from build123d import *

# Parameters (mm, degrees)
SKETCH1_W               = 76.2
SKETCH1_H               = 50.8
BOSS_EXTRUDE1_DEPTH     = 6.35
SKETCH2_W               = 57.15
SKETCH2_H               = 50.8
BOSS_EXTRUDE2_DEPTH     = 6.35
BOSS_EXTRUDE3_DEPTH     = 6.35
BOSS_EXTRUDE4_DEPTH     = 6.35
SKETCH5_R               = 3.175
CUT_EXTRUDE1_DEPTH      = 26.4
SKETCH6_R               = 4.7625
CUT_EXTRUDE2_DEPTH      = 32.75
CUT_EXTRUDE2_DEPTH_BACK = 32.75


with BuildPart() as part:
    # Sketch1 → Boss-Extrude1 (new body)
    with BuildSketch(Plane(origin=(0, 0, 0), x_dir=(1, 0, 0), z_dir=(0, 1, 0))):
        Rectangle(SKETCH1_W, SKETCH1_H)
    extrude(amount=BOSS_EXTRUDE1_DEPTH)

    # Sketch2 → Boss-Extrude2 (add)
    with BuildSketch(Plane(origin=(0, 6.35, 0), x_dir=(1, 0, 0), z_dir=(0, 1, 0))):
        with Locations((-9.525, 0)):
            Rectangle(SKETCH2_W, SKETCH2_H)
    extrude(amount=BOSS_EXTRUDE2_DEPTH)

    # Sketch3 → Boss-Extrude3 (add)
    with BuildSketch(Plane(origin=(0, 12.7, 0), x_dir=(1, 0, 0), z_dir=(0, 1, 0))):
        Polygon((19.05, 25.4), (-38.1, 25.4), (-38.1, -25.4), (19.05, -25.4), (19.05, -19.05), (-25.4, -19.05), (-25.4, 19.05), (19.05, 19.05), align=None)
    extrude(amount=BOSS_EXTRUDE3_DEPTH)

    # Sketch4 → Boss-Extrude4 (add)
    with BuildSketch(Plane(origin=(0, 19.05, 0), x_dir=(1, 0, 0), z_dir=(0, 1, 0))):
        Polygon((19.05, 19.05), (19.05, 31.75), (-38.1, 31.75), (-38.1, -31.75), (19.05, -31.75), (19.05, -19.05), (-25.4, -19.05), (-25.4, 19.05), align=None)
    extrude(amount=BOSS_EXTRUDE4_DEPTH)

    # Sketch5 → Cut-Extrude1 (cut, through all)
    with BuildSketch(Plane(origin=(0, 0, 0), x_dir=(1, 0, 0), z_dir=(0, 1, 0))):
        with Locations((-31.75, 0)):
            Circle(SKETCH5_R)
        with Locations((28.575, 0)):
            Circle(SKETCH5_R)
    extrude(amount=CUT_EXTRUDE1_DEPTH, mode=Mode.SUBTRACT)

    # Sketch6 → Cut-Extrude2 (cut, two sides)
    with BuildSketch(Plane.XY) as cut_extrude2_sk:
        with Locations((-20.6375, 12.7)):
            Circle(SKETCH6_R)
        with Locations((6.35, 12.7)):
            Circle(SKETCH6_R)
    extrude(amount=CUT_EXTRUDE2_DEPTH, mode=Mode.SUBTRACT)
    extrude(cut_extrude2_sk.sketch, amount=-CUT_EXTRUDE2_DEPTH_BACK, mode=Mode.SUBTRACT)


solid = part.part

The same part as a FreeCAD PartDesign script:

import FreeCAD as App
import Part
import Sketcher
from FreeCAD import Vector
Q = App.Units.Quantity

doc = App.newDocument("Part")
params = doc.addObject("Spreadsheet::Sheet", "Params")
for row, (alias, value) in enumerate([
    ("sketch1_width", "3 in"),
    ("sketch1_height", "2 in"),
    ("pad1_length", "0.25 in"),
    ("sketch2_height", "2 in"),
    ("sketch2_width", "2.25 in"),
    ("pad2_length", "0.25 in"),
    ("sketch3_height", "2 in"),
    ("sketch3_height2", "1.5 in"),
    ("sketch3_width", "2.25 in"),
    ("sketch3_width2", "1.75 in"),
    ("pad3_length", "0.25 in"),
    ("sketch4_height", "0.5 in"),
    ("sketch4_height2", "2.5 in"),
    ("sketch4_width", "2.25 in"),
    ("sketch4_width2", "1.75 in"),
    ("pad4_length", "0.25 in"),
    ("sketch5_diameter", "0.25 in"),
    ("sketch6_diameter", "0.375 in"),
], start=1):
    params.set(f"A{row}", alias)
    params.set(f"B{row}", "=" + value)
    params.setAlias(f"B{row}", alias)

body = doc.addObject("PartDesign::Body", "Body")

sketch1 = body.newObject("Sketcher::SketchObject", "Sketch")
sketch1.AttachmentSupport = (doc.getObject("XZ_Plane"), [""])
sketch1.MapMode = "FlatFace"
sketch1.addGeometry(Part.LineSegment(Vector(-38, -25, 0), Vector(-38, 25, 0)), False)
sketch1.addGeometry(Part.LineSegment(Vector(-38, 25, 0), Vector(38, 25, 0)), False)
sketch1.addGeometry(Part.LineSegment(Vector(38, 25, 0), Vector(38, -25, 0)), False)
sketch1.addGeometry(Part.LineSegment(Vector(38, -25, 0), Vector(-38, -25, 0)), False)
sketch1.addConstraint(Sketcher.Constraint("Coincident", 0, 2, 1, 1))
sketch1.addConstraint(Sketcher.Constraint("Coincident", 1, 2, 2, 1))
sketch1.addConstraint(Sketcher.Constraint("Coincident", 2, 2, 3, 1))
sketch1.addConstraint(Sketcher.Constraint("Coincident", 3, 2, 0, 1))
sketch1.addConstraint(Sketcher.Constraint("Vertical", 0))
sketch1.addConstraint(Sketcher.Constraint("Horizontal", 1))
sketch1.addConstraint(Sketcher.Constraint("Vertical", 2))
sketch1.addConstraint(Sketcher.Constraint("Horizontal", 3))
sketch1.addConstraint(Sketcher.Constraint("Symmetric", 0, 2, 2, 2, -1, 1))
sketch1.addConstraint(Sketcher.Constraint("DistanceX", 1, 1, 1, 2, Q("3 in")))
sketch1.addConstraint(Sketcher.Constraint("DistanceY", 0, 1, 0, 2, Q("2 in")))
sketch1.setExpression("Constraints[9]", "Params.sketch1_width")
sketch1.setExpression("Constraints[10]", "Params.sketch1_height")
pad1 = body.newObject("PartDesign::Pad", "Pad")
pad1.Profile = sketch1
pad1.setExpression("Length", "Params.pad1_length")
pad1.Reversed = True

sketch2 = body.newObject("Sketcher::SketchObject", "Sketch001")
sketch2.AttachmentSupport = (doc.getObject("XZ_Plane"), [""])
sketch2.MapMode = "FlatFace"
sketch2.AttachmentOffset = App.Placement(Vector(0, 0, -0.25 * 25.4), App.Rotation())
sketch2.addGeometry(Part.LineSegment(Vector(-38, -25, 0), Vector(-38, 25, 0)), False)
sketch2.addGeometry(Part.LineSegment(Vector(-38, 25, 0), Vector(19, 25, 0)), False)
sketch2.addGeometry(Part.LineSegment(Vector(19, 25, 0), Vector(19, -25, 0)), False)
sketch2.addGeometry(Part.LineSegment(Vector(19, -25, 0), Vector(-38, -25, 0)), False)
sketch2.addConstraint(Sketcher.Constraint("Coincident", 0, 2, 1, 1))
sketch2.addConstraint(Sketcher.Constraint("Coincident", 1, 2, 2, 1))
sketch2.addConstraint(Sketcher.Constraint("Coincident", 2, 2, 3, 1))
sketch2.addConstraint(Sketcher.Constraint("Coincident", 3, 2, 0, 1))
sketch2.addConstraint(Sketcher.Constraint("Vertical", 0))
sketch2.addConstraint(Sketcher.Constraint("Horizontal", 1))
sketch2.addConstraint(Sketcher.Constraint("Vertical", 2))
sketch2.addConstraint(Sketcher.Constraint("Horizontal", 3))
sketch2.addConstraint(Sketcher.Constraint("DistanceY", 0, 1, 0, 2, Q("2 in")))
sketch2.addConstraint(Sketcher.Constraint("DistanceY", -1, 1, 0, 2, Q("1 in")))
sketch2.addConstraint(Sketcher.Constraint("DistanceX", 1, 1, 1, 2, Q("2.25 in")))
sketch2.addConstraint(Sketcher.Constraint("DistanceX", 0, 2, -1, 1, Q("1.5 in")))
sketch2.setExpression("Constraints[8]", "Params.sketch2_height")
sketch2.setExpression("Constraints[10]", "Params.sketch2_width")
pad2 = body.newObject("PartDesign::Pad", "Pad001")
pad2.Profile = sketch2
pad2.setExpression("Length", "Params.pad2_length")
pad2.Reversed = True

sketch3 = body.newObject("Sketcher::SketchObject", "Sketch002")
sketch3.AttachmentSupport = (doc.getObject("XZ_Plane"), [""])
sketch3.MapMode = "FlatFace"
sketch3.AttachmentOffset = App.Placement(Vector(0, 0, -0.5 * 25.4), App.Rotation())
sketch3.addGeometry(Part.LineSegment(Vector(19, -25, 0), Vector(-38, -25, 0)), False)
sketch3.addGeometry(Part.LineSegment(Vector(-38, -25, 0), Vector(-38, 25, 0)), False)
sketch3.addGeometry(Part.LineSegment(Vector(-38, 25, 0), Vector(19, 25, 0)), False)
sketch3.addGeometry(Part.LineSegment(Vector(19, 25, 0), Vector(19, 19, 0)), False)
sketch3.addGeometry(Part.LineSegment(Vector(19, 19, 0), Vector(-25, 19, 0)), False)
sketch3.addGeometry(Part.LineSegment(Vector(-25, 19, 0), Vector(-25, -19, 0)), False)
sketch3.addGeometry(Part.LineSegment(Vector(-25, -19, 0), Vector(19, -19, 0)), False)
sketch3.addGeometry(Part.LineSegment(Vector(19, -19, 0), Vector(19, -25, 0)), False)
sketch3.addConstraint(Sketcher.Constraint("Coincident", 0, 2, 1, 1))
sketch3.addConstraint(Sketcher.Constraint("Coincident", 1, 2, 2, 1))
sketch3.addConstraint(Sketcher.Constraint("Coincident", 2, 2, 3, 1))
sketch3.addConstraint(Sketcher.Constraint("Coincident", 3, 2, 4, 1))
sketch3.addConstraint(Sketcher.Constraint("Coincident", 4, 2, 5, 1))
sketch3.addConstraint(Sketcher.Constraint("Coincident", 5, 2, 6, 1))
sketch3.addConstraint(Sketcher.Constraint("Coincident", 6, 2, 7, 1))
sketch3.addConstraint(Sketcher.Constraint("Coincident", 7, 2, 0, 1))
sketch3.addConstraint(Sketcher.Constraint("Horizontal", 0))
sketch3.addConstraint(Sketcher.Constraint("Vertical", 1))
sketch3.addConstraint(Sketcher.Constraint("Horizontal", 2))
sketch3.addConstraint(Sketcher.Constraint("Vertical", 3))
sketch3.addConstraint(Sketcher.Constraint("Horizontal", 4))
sketch3.addConstraint(Sketcher.Constraint("Vertical", 5))
sketch3.addConstraint(Sketcher.Constraint("Horizontal", 6))
sketch3.addConstraint(Sketcher.Constraint("Vertical", 7))
sketch3.addConstraint(Sketcher.Constraint("Symmetric", 3, 2, 6, 2, -1))
sketch3.addConstraint(Sketcher.Constraint("Equal", 3, 7))
sketch3.addConstraint(Sketcher.Constraint("DistanceY", 1, 1, 1, 2, Q("2 in")))
sketch3.addConstraint(Sketcher.Constraint("DistanceY", 5, 2, 5, 1, Q("1.5 in")))
sketch3.addConstraint(Sketcher.Constraint("DistanceX", 4, 2, -1, 1, Q("1 in")))
sketch3.addConstraint(Sketcher.Constraint("DistanceX", 0, 2, 0, 1, Q("2.25 in")))
sketch3.addConstraint(Sketcher.Constraint("DistanceX", 4, 2, 4, 1, Q("1.75 in")))
sketch3.setExpression("Constraints[18]", "Params.sketch3_height")
sketch3.setExpression("Constraints[19]", "Params.sketch3_height2")
sketch3.setExpression("Constraints[21]", "Params.sketch3_width")
sketch3.setExpression("Constraints[22]", "Params.sketch3_width2")
pad3 = body.newObject("PartDesign::Pad", "Pad002")
pad3.Profile = sketch3
pad3.setExpression("Length", "Params.pad3_length")
pad3.Reversed = True

sketch4 = body.newObject("Sketcher::SketchObject", "Sketch003")
sketch4.AttachmentSupport = (doc.getObject("XZ_Plane"), [""])
sketch4.MapMode = "FlatFace"
sketch4.AttachmentOffset = App.Placement(Vector(0, 0, -0.75 * 25.4), App.Rotation())
sketch4.addGeometry(Part.LineSegment(Vector(19, -19, 0), Vector(19, -32, 0)), False)
sketch4.addGeometry(Part.LineSegment(Vector(19, -32, 0), Vector(-38, -32, 0)), False)
sketch4.addGeometry(Part.LineSegment(Vector(-38, -32, 0), Vector(-38, 32, 0)), False)
sketch4.addGeometry(Part.LineSegment(Vector(-38, 32, 0), Vector(19, 32, 0)), False)
sketch4.addGeometry(Part.LineSegment(Vector(19, 32, 0), Vector(19, 19, 0)), False)
sketch4.addGeometry(Part.LineSegment(Vector(19, 19, 0), Vector(-25, 19, 0)), False)
sketch4.addGeometry(Part.LineSegment(Vector(-25, 19, 0), Vector(-25, -19, 0)), False)
sketch4.addGeometry(Part.LineSegment(Vector(-25, -19, 0), Vector(19, -19, 0)), False)
sketch4.addConstraint(Sketcher.Constraint("Coincident", 0, 2, 1, 1))
sketch4.addConstraint(Sketcher.Constraint("Coincident", 1, 2, 2, 1))
sketch4.addConstraint(Sketcher.Constraint("Coincident", 2, 2, 3, 1))
sketch4.addConstraint(Sketcher.Constraint("Coincident", 3, 2, 4, 1))
sketch4.addConstraint(Sketcher.Constraint("Coincident", 4, 2, 5, 1))
sketch4.addConstraint(Sketcher.Constraint("Coincident", 5, 2, 6, 1))
sketch4.addConstraint(Sketcher.Constraint("Coincident", 6, 2, 7, 1))
sketch4.addConstraint(Sketcher.Constraint("Coincident", 7, 2, 0, 1))
sketch4.addConstraint(Sketcher.Constraint("Vertical", 0))
sketch4.addConstraint(Sketcher.Constraint("Horizontal", 1))
sketch4.addConstraint(Sketcher.Constraint("Vertical", 2))
sketch4.addConstraint(Sketcher.Constraint("Horizontal", 3))
sketch4.addConstraint(Sketcher.Constraint("Vertical", 4))
sketch4.addConstraint(Sketcher.Constraint("Horizontal", 5))
sketch4.addConstraint(Sketcher.Constraint("Vertical", 6))
sketch4.addConstraint(Sketcher.Constraint("Horizontal", 7))
sketch4.addConstraint(Sketcher.Constraint("Symmetric", 0, 2, 3, 2, -1))
sketch4.addConstraint(Sketcher.Constraint("Equal", 0, 4))
sketch4.addConstraint(Sketcher.Constraint("DistanceY", 0, 2, 0, 1, Q("0.5 in")))
sketch4.addConstraint(Sketcher.Constraint("DistanceY", 2, 1, 2, 2, Q("2.5 in")))
sketch4.addConstraint(Sketcher.Constraint("DistanceX", 5, 2, -1, 1, Q("1 in")))
sketch4.addConstraint(Sketcher.Constraint("DistanceX", 1, 2, 1, 1, Q("2.25 in")))
sketch4.addConstraint(Sketcher.Constraint("DistanceX", 5, 2, 5, 1, Q("1.75 in")))
sketch4.setExpression("Constraints[18]", "Params.sketch4_height")
sketch4.setExpression("Constraints[19]", "Params.sketch4_height2")
sketch4.setExpression("Constraints[21]", "Params.sketch4_width")
sketch4.setExpression("Constraints[22]", "Params.sketch4_width2")
pad4 = body.newObject("PartDesign::Pad", "Pad003")
pad4.Profile = sketch4
pad4.setExpression("Length", "Params.pad4_length")
pad4.Reversed = True

sketch5 = body.newObject("Sketcher::SketchObject", "Sketch004")
sketch5.AttachmentSupport = (doc.getObject("XZ_Plane"), [""])
sketch5.MapMode = "FlatFace"
sketch5.addGeometry(Part.Circle(Vector(-31.8, 0, 0), Vector(0, 0, 1), 3.2), False)
sketch5.addGeometry(Part.Circle(Vector(28.6, 0, 0), Vector(0, 0, 1), 3.2), False)
sketch5.addConstraint(Sketcher.Constraint("Equal", 0, 1))
sketch5.addConstraint(Sketcher.Constraint("PointOnObject", 0, 3, -1))
sketch5.addConstraint(Sketcher.Constraint("PointOnObject", 1, 3, -1))
sketch5.addConstraint(Sketcher.Constraint("Diameter", 0, Q("0.25 in")))
sketch5.addConstraint(Sketcher.Constraint("DistanceX", 0, 3, -1, 1, Q("1.25 in")))
sketch5.addConstraint(Sketcher.Constraint("DistanceX", -1, 1, 1, 3, Q("1.125 in")))
sketch5.setExpression("Constraints[3]", "Params.sketch5_diameter")
pocket1 = body.newObject("PartDesign::Pocket", "Pocket")
pocket1.Profile = sketch5
pocket1.Type = "ThroughAll"

sketch6 = body.newObject("Sketcher::SketchObject", "Sketch005")
sketch6.AttachmentSupport = (doc.getObject("XY_Plane"), [""])
sketch6.MapMode = "FlatFace"
sketch6.addGeometry(Part.Circle(Vector(-20.6, 12.7, 0), Vector(0, 0, 1), 4.8), False)
sketch6.addGeometry(Part.Circle(Vector(6.3, 12.7, 0), Vector(0, 0, 1), 4.8), False)
sketch6.addConstraint(Sketcher.Constraint("Equal", 0, 1))
sketch6.addConstraint(Sketcher.Constraint("Horizontal", 0, 3, 1, 3))
sketch6.addConstraint(Sketcher.Constraint("Diameter", 0, Q("0.375 in")))
sketch6.addConstraint(Sketcher.Constraint("DistanceY", -1, 1, 0, 3, Q("0.5 in")))
sketch6.addConstraint(Sketcher.Constraint("DistanceX", -1, 1, 1, 3, Q("0.25 in")))
sketch6.addConstraint(Sketcher.Constraint("DistanceX", 0, 3, -1, 1, Q("0.8125 in")))
sketch6.setExpression("Constraints[2]", "Params.sketch6_diameter")
pocket2 = body.newObject("PartDesign::Pocket", "Pocket001")
pocket2.Profile = sketch6
pocket2.Type = "ThroughAll"
pocket2.Midplane = True

doc.recompute()
